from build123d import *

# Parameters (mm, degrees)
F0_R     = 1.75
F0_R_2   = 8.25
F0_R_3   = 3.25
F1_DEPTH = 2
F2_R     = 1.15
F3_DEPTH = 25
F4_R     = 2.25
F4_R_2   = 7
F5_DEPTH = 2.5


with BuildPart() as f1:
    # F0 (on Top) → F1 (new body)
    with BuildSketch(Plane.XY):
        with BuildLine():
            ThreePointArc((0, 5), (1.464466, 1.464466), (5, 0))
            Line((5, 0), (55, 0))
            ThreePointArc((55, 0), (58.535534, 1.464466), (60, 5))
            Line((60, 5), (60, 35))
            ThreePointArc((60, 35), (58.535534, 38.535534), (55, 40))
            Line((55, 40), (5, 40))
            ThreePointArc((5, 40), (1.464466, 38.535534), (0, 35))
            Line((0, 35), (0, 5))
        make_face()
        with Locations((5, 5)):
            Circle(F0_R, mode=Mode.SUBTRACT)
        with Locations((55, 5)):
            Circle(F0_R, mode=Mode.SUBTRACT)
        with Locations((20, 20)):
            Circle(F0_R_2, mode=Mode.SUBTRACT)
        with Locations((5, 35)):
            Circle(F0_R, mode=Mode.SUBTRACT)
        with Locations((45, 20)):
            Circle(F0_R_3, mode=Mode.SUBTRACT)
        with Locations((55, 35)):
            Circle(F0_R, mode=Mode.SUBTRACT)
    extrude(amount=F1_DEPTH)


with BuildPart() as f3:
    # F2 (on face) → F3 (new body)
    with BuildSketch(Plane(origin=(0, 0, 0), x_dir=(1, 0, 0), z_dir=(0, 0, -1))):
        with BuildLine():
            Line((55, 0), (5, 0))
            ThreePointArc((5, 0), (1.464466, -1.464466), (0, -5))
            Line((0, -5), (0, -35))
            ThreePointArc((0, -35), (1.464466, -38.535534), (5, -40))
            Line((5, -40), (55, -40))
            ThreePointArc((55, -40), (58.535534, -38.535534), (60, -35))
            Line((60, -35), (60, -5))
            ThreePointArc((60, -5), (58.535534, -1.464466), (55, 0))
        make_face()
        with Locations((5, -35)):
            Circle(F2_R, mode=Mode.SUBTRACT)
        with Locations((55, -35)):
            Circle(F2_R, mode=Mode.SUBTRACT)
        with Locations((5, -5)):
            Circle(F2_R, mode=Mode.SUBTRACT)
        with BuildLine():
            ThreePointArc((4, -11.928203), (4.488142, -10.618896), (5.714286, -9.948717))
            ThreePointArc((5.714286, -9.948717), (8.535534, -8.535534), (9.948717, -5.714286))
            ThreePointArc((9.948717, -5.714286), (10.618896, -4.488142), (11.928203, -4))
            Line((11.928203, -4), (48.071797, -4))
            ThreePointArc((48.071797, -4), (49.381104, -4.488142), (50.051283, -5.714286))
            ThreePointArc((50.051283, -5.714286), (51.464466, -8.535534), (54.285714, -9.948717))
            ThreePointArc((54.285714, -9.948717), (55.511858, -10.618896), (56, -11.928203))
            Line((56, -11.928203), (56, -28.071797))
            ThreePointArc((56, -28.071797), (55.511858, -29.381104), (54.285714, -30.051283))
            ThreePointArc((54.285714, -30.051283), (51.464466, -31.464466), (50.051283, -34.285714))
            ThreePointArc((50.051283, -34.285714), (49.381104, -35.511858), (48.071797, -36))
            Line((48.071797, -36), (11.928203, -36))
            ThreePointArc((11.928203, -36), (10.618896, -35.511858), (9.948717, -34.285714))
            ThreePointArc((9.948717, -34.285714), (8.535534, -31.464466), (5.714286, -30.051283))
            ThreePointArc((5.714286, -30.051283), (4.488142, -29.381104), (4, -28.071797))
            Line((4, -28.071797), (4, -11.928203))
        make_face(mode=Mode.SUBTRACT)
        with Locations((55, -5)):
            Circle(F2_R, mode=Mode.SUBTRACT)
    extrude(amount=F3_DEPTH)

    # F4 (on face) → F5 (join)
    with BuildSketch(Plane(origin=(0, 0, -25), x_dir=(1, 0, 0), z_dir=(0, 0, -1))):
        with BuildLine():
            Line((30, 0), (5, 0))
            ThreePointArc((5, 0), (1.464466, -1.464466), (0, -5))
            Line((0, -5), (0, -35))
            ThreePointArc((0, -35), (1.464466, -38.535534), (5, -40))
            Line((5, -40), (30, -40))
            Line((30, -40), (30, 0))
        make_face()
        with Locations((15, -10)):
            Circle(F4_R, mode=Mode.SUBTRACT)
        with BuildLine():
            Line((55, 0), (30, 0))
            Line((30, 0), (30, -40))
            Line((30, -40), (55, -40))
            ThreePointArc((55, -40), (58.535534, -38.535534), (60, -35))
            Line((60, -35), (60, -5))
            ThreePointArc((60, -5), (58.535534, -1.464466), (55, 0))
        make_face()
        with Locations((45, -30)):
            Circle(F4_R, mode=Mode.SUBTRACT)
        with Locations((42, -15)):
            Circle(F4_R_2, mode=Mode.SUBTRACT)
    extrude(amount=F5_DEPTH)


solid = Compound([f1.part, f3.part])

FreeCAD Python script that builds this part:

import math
import FreeCAD as App
import Part
import Sketcher

V = App.Vector

doc = App.newDocument("Part")
body = doc.addObject("PartDesign::Body", "Body")

sketch1 = body.newObject("Sketcher::SketchObject", "Sketch")
sketch1.AttachmentSupport = (doc.getObject("XY_Plane"), [""])
sketch1.MapMode = "FlatFace"
sketch1.addGeometry(Part.ArcOfCircle(Part.Circle(V(5, 5, 0), V(0, 0, 1), 5), math.radians(180), math.radians(270)), False)
sketch1.addGeometry(Part.LineSegment(V(5, 0, 0), V(55, 0, 0)), False)
sketch1.addGeometry(Part.ArcOfCircle(Part.Circle(V(55, 5, 0), V(0, 0, 1), 5), math.radians(-90), math.radians(0)), False)
sketch1.addGeometry(Part.LineSegment(V(60, 5, 0), V(60, 35, 0)), False)
sketch1.addGeometry(Part.ArcOfCircle(Part.Circle(V(55, 35, 0), V(0, 0, 1), 5), math.radians(0), math.radians(90)), False)
sketch1.addGeometry(Part.LineSegment(V(55, 40, 0), V(5, 40, 0)), False)
sketch1.addGeometry(Part.ArcOfCircle(Part.Circle(V(5, 35, 0), V(0, 0, 1), 5), math.radians(90), math.radians(180)), False)
sketch1.addGeometry(Part.LineSegment(V(0, 35, 0), V(0, 5, 0)), False)
sketch1.addGeometry(Part.Circle(V(5, 5, 0), V(0, 0, 1), 1.8), False)
sketch1.addGeometry(Part.Circle(V(55, 5, 0), V(0, 0, 1), 1.8), False)
sketch1.addGeometry(Part.Circle(V(20, 20, 0), V(0, 0, 1), 8.2), False)
sketch1.addGeometry(Part.Circle(V(5, 35, 0), V(0, 0, 1), 1.8), False)
sketch1.addGeometry(Part.Circle(V(45, 20, 0), V(0, 0, 1), 3.2), False)
sketch1.addGeometry(Part.Circle(V(55, 35, 0), V(0, 0, 1), 1.8), False)
sketch1.addConstraint(Sketcher.Constraint("Tangent", 0, 2, 1, 1))
sketch1.addConstraint(Sketcher.Constraint("Tangent", 1, 2, 2, 1))
sketch1.addConstraint(Sketcher.Constraint("Tangent", 2, 2, 3, 1))
sketch1.addConstraint(Sketcher.Constraint("Tangent", 3, 2, 4, 1))
sketch1.addConstraint(Sketcher.Constraint("Tangent", 4, 2, 5, 1))
sketch1.addConstraint(Sketcher.Constraint("Tangent", 5, 2, 6, 1))
sketch1.addConstraint(Sketcher.Constraint("Tangent", 6, 2, 7, 1))
sketch1.addConstraint(Sketcher.Constraint("Tangent", 7, 2, 0, 1))
sketch1.addConstraint(Sketcher.Constraint("Horizontal", 1))
sketch1.addConstraint(Sketcher.Constraint("Vertical", 3))
sketch1.addConstraint(Sketcher.Constraint("Horizontal", 5))
sketch1.addConstraint(Sketcher.Constraint("Vertical", 7))
sketch1.addConstraint(Sketcher.Constraint("Coincident", 8, 3, 0, 3))
sketch1.addConstraint(Sketcher.Constraint("Coincident", 9, 3, 2, 3))
sketch1.addConstraint(Sketcher.Constraint("Coincident", 11, 3, 6, 3))
sketch1.addConstraint(Sketcher.Constraint("Coincident", 13, 3, 4, 3))
sketch1.addConstraint(Sketcher.Constraint("Equal", 0, 2))
sketch1.addConstraint(Sketcher.Constraint("Equal", 2, 4))
sketch1.addConstraint(Sketcher.Constraint("Equal", 4, 6))
sketch1.addConstraint(Sketcher.Constraint("Equal", 8, 9))
sketch1.addConstraint(Sketcher.Constraint("Equal", 9, 11))
sketch1.addConstraint(Sketcher.Constraint("Equal", 11, 13))
sketch1.addConstraint(Sketcher.Constraint("PointOnObject", 0, 2, -1))
sketch1.addConstraint(Sketcher.Constraint("PointOnObject", 6, 2, -2))
sketch1.addConstraint(Sketcher.Constraint("Horizontal", 10, 3, 12, 3))
sketch1.addConstraint(Sketcher.Constraint("Radius", 0, 5.0))
sketch1.addConstraint(Sketcher.Constraint("Diameter", 8, 3.5))
sketch1.addConstraint(Sketcher.Constraint("Diameter", 10, 16.5))
sketch1.addConstraint(Sketcher.Constraint("Diameter", 12, 6.5))
sketch1.addConstraint(Sketcher.Constraint("DistanceX", 1, 1, 1, 2, 50.0))
sketch1.addConstraint(Sketcher.Constraint("DistanceY", 3, 1, 3, 2, 30.0))
sketch1.addConstraint(Sketcher.Constraint("DistanceX", -1, 1, 10, 3, 20.0))
sketch1.addConstraint(Sketcher.Constraint("DistanceY", -1, 1, 10, 3, 20.0))
sketch1.addConstraint(Sketcher.Constraint("DistanceX", -1, 1, 12, 3, 45.0))
pad1 = body.newObject("PartDesign::Pad", "Pad")
pad1.Profile = sketch1
pad1.Length = 2
body2 = doc.addObject("PartDesign::Body", "Body001")

sketch2 = body2.newObject("Sketcher::SketchObject", "Sketch001")
sketch2.AttachmentSupport = (doc.getObject("XY_Plane001"), [""])
sketch2.MapMode = "FlatFace"
sketch2.addGeometry(Part.LineSegment(V(55, 0, 0), V(5, 0, 0)), False)
sketch2.addGeometry(Part.ArcOfCircle(Part.Circle(V(5, 5, 0), V(0, 0, 1), 5), math.radians(180), math.radians(270)), False)
sketch2.addGeometry(Part.LineSegment(V(0, 5, 0), V(0, 35, 0)), False)
sketch2.addGeometry(Part.ArcOfCircle(Part.Circle(V(5, 35, 0), V(0, 0, 1), 5), math.radians(90), math.radians(180)), False)
sketch2.addGeometry(Part.LineSegment(V(5, 40, 0), V(55, 40, 0)), False)
sketch2.addGeometry(Part.ArcOfCircle(Part.Circle(V(55, 35, 0), V(0, 0, 1), 5), math.radians(0), math.radians(90)), False)
sketch2.addGeometry(Part.LineSegment(V(60, 35, 0), V(60, 5, 0)), False)
sketch2.addGeometry(Part.ArcOfCircle(Part.Circle(V(55, 5, 0), V(0, 0, 1), 5), math.radians(-90), math.radians(0)), False)
sketch2.addGeometry(Part.Circle(V(5, 35, 0), V(0, 0, 1), 1.1), False)
sketch2.addGeometry(Part.Circle(V(55, 35, 0), V(0, 0, 1), 1.1), False)
sketch2.addGeometry(Part.Circle(V(5, 5, 0), V(0, 0, 1), 1.1), False)
sketch2.addGeometry(Part.LineSegment(V(4, 28.1, 0), V(4, 11.9, 0)), False)
sketch2.addGeometry(Part.ArcOfCircle(Part.Circle(V(6, 11.9, 0), V(0, 0, 1), 2), math.radians(180), math.radians(262)), False)
sketch2.addGeometry(Part.ArcOfCircle(Part.Circle(V(5, 5, 0), V(0, 0, 1), 5), math.radians(8), math.radians(82)), False)
sketch2.addGeometry(Part.ArcOfCircle(Part.Circle(V(11.9, 6, 0), V(0, 0, 1), 2), math.radians(-172), math.radians(-90)), False)
sketch2.addGeometry(Part.LineSegment(V(11.9, 4, 0), V(48.1, 4, 0)), False)
sketch2.addGeometry(Part.ArcOfCircle(Part.Circle(V(48.1, 6, 0), V(0, 0, 1), 2), math.radians(-90), math.radians(-8)), False)
sketch2.addGeometry(Part.ArcOfCircle(Part.Circle(V(55, 5, 0), V(0, 0, 1), 5), math.radians(98), math.radians(172)), False)
sketch2.addGeometry(Part.ArcOfCircle(Part.Circle(V(54, 11.9, 0), V(0, 0, 1), 2), math.radians(-82), math.radians(0)), False)
sketch2.addGeometry(Part.LineSegment(V(56, 11.9, 0), V(56, 28.1, 0)), False)
sketch2.addGeometry(Part.ArcOfCircle(Part.Circle(V(54, 28.1, 0), V(0, 0, 1), 2), math.radians(0), math.radians(82)), False)
sketch2.addGeometry(Part.ArcOfCircle(Part.Circle(V(55, 35, 0), V(0, 0, 1), 5), math.radians(-172), math.radians(-98)), False)
sketch2.addGeometry(Part.ArcOfCircle(Part.Circle(V(48.1, 34, 0), V(0, 0, 1), 2), math.radians(8), math.radians(90)), False)
sketch2.addGeometry(Part.LineSegment(V(48.1, 36, 0), V(11.9, 36, 0)), False)
sketch2.addGeometry(Part.ArcOfCircle(Part.Circle(V(11.9, 34, 0), V(0, 0, 1), 2), math.radians(90), math.radians(172)), False)
sketch2.addGeometry(Part.ArcOfCircle(Part.Circle(V(5, 35, 0), V(0, 0, 1), 5), math.radians(-82), math.radians(-8)), False)
sketch2.addGeometry(Part.ArcOfCircle(Part.Circle(V(6, 28.1, 0), V(0, 0, 1), 2), math.radians(98), math.radians(180)), False)
sketch2.addGeometry(Part.Circle(V(55, 5, 0), V(0, 0, 1), 1.1), False)
sketch2.addConstraint(Sketcher.Constraint("Tangent", 0, 2, 1, 2))
sketch2.addConstraint(Sketcher.Constraint("Tangent", 1, 1, 2, 1))
sketch2.addConstraint(Sketcher.Constraint("Tangent", 2, 2, 3, 2))
sketch2.addConstraint(Sketcher.Constraint("Tangent", 3, 1, 4, 1))
sketch2.addConstraint(Sketcher.Constraint("Tangent", 4, 2, 5, 2))
sketch2.addConstraint(Sketcher.Constraint("Tangent", 5, 1, 6, 1))
sketch2.addConstraint(Sketcher.Constraint("Tangent", 6, 2, 7, 2))
sketch2.addConstraint(Sketcher.Constraint("Tangent", 7, 1, 0, 1))
sketch2.addConstraint(Sketcher.Constraint("Tangent", 11, 2, 12, 1))
sketch2.addConstraint(Sketcher.Constraint("Tangent", 12, 2, 13, 2))
sketch2.addConstraint(Sketcher.Constraint("Tangent", 13, 1, 14, 1))
sketch2.addConstraint(Sketcher.Constraint("Tangent", 14, 2, 15, 1))
sketch2.addConstraint(Sketcher.Constraint("Tangent", 15, 2, 16, 1))
sketch2.addConstraint(Sketcher.Constraint("Tangent", 16, 2, 17, 2))
sketch2.addConstraint(Sketcher.Constraint("Tangent", 17, 1, 18, 1))
sketch2.addConstraint(Sketcher.Constraint("Tangent", 18, 2, 19, 1))
sketch2.addConstraint(Sketcher.Constraint("Tangent", 19, 2, 20, 1))
sketch2.addConstraint(Sketcher.Constraint("Tangent", 20, 2, 21, 2))
sketch2.addConstraint(Sketcher.Constraint("Tangent", 21, 1, 22, 1))
sketch2.addConstraint(Sketcher.Constraint("Tangent", 22, 2, 23, 1))
sketch2.addConstraint(Sketcher.Constraint("Tangent", 23, 2, 24, 1))
sketch2.addConstraint(Sketcher.Constraint("Tangent", 24, 2, 25, 2))
sketch2.addConstraint(Sketcher.Constraint("Tangent", 25, 1, 26, 1))
sketch2.addConstraint(Sketcher.Constraint("Tangent", 26, 2, 11, 1))
sketch2.addConstraint(Sketcher.Constraint("Horizontal", 0))
sketch2.addConstraint(Sketcher.Constraint("Vertical", 2))
sketch2.addConstraint(Sketcher.Constraint("Horizontal", 4))
sketch2.addConstraint(Sketcher.Constraint("Vertical", 6))
sketch2.addConstraint(Sketcher.Constraint("Vertical", 11))
sketch2.addConstraint(Sketcher.Constraint("Horizontal", 15))
sketch2.addConstraint(Sketcher.Constraint("Vertical", 19))
sketch2.addConstraint(Sketcher.Constraint("Horizontal", 23))
sketch2.addConstraint(Sketcher.Constraint("Coincident", 8, 3, 3, 3))
sketch2.addConstraint(Sketcher.Constraint("Coincident", 9, 3, 5, 3))
sketch2.addConstraint(Sketcher.Constraint("Coincident", 10, 3, 1, 3))
sketch2.addConstraint(Sketcher.Constraint("Coincident", 13, 3, 1, 3))
sketch2.addConstraint(Sketcher.Constraint("Coincident", 17, 3, 7, 3))
sketch2.addConstraint(Sketcher.Constraint("Coincident", 21, 3, 5, 3))
sketch2.addConstraint(Sketcher.Constraint("Coincident", 25, 3, 3, 3))
sketch2.addConstraint(Sketcher.Constraint("Coincident", 27, 3, 7, 3))
sketch2.addConstraint(Sketcher.Constraint("Equal", 1, 3))
sketch2.addConstraint(Sketcher.Constraint("Equal", 3, 5))
sketch2.addConstraint(Sketcher.Constraint("Equal", 5, 7))
sketch2.addConstraint(Sketcher.Constraint("Equal", 8, 9))
sketch2.addConstraint(Sketcher.Constraint("Equal", 9, 10))
sketch2.addConstraint(Sketcher.Constraint("Equal", 12, 14))
sketch2.addConstraint(Sketcher.Constraint("Equal", 14, 16))
sketch2.addConstraint(Sketcher.Constraint("Equal", 13, 17))
sketch2.addConstraint(Sketcher.Constraint("Equal", 16, 18))
sketch2.addConstraint(Sketcher.Constraint("Equal", 18, 20))
sketch2.addConstraint(Sketcher.Constraint("Equal", 17, 21))
sketch2.addConstraint(Sketcher.Constraint("Equal", 20, 22))
sketch2.addConstraint(Sketcher.Constraint("Equal", 22, 24))
sketch2.addConstraint(Sketcher.Constraint("Equal", 21, 25))
sketch2.addConstraint(Sketcher.Constraint("Equal", 24, 26))
sketch2.addConstraint(Sketcher.Constraint("Equal", 10, 27))
sketch2.addConstraint(Sketcher.Constraint("PointOnObject", 0, 2, -1))
sketch2.addConstraint(Sketcher.Constraint("PointOnObject", 1, 1, -2))
sketch2.addConstraint(Sketcher.Constraint("Horizontal", 12, 3, 18, 3))
sketch2.addConstraint(Sketcher.Constraint("Vertical", 16, 3, 22, 3))
sketch2.addConstraint(Sketcher.Constraint("Radius", 1, 5.0))
sketch2.addConstraint(Sketcher.Constraint("Radius", 12, 1.999999))
sketch2.addConstraint(Sketcher.Constraint("Radius", 13, 5.000002))
sketch2.addConstraint(Sketcher.Constraint("Diameter", 8, 2.3))
sketch2.addConstraint(Sketcher.Constraint("DistanceX", 0, 2, 0, 1, 50.0))
sketch2.addConstraint(Sketcher.Constraint("DistanceY", 2, 1, 2, 2, 30.0))
sketch2.addConstraint(Sketcher.Constraint("DistanceX", -1, 1, 12, 3, 5.999999))
sketch2.addConstraint(Sketcher.Constraint("DistanceY", -1, 1, 14, 3, 5.999999))
pad2 = body2.newObject("PartDesign::Pad", "Pad001")
pad2.Profile = sketch2
pad2.Length = 25
pad2.Reversed = True

sketch3 = body2.newObject("Sketcher::SketchObject", "Sketch002")
sketch3.AttachmentSupport = (doc.getObject("XY_Plane001"), [""])
sketch3.MapMode = "FlatFace"
sketch3.AttachmentOffset = App.Placement(V(0, 0, -25), App.Rotation())
sketch3.addGeometry(Part.ArcOfCircle(Part.Circle(V(5, 5, 0), V(0, 0, 1), 5), math.radians(180), math.radians(270)), False)
sketch3.addGeometry(Part.LineSegment(V(0, 5, 0), V(0, 35, 0)), False)
sketch3.addGeometry(Part.ArcOfCircle(Part.Circle(V(5, 35, 0), V(0, 0, 1), 5), math.radians(90), math.radians(180)), False)
sketch3.addGeometry(Part.LineSegment(V(5, 40, 0), V(55, 40, 0)), False)
sketch3.addGeometry(Part.ArcOfCircle(Part.Circle(V(55, 35, 0), V(0, 0, 1), 5), math.radians(0), math.radians(90)), False)
sketch3.addGeometry(Part.LineSegment(V(60, 35, 0), V(60, 5, 0)), False)
sketch3.addGeometry(Part.ArcOfCircle(Part.Circle(V(55, 5, 0), V(0, 0, 1), 5), math.radians(-90), math.radians(0)), False)
sketch3.addGeometry(Part.LineSegment(V(55, 0, 0), V(5, 0, 0)), False)
sketch3.addGeometry(Part.Circle(V(45, 30, 0), V(0, 0, 1), 2.2), False)
sketch3.addGeometry(Part.Circle(V(15, 10, 0), V(0, 0, 1), 2.2), False)
sketch3.addGeometry(Part.Circle(V(42, 15, 0), V(0, 0, 1), 7), False)
sketch3.addConstraint(Sketcher.Constraint("Tangent", 0, 1, 1, 1))
sketch3.addConstraint(Sketcher.Constraint("Tangent", 1, 2, 2, 2))
sketch3.addConstraint(Sketcher.Constraint("Tangent", 2, 1, 3, 1))
sketch3.addConstraint(Sketcher.Constraint("Tangent", 3, 2, 4, 2))
sketch3.addConstraint(Sketcher.Constraint("Tangent", 4, 1, 5, 1))
sketch3.addConstraint(Sketcher.Constraint("Tangent", 5, 2, 6, 2))
sketch3.addConstraint(Sketcher.Constraint("Tangent", 6, 1, 7, 1))
sketch3.addConstraint(Sketcher.Constraint("Tangent", 7, 2, 0, 2))
sketch3.addConstraint(Sketcher.Constraint("Vertical", 1))
sketch3.addConstraint(Sketcher.Constraint("Horizontal", 3))
sketch3.addConstraint(Sketcher.Constraint("Vertical", 5))
sketch3.addConstraint(Sketcher.Constraint("Horizontal", 7))
sketch3.addConstraint(Sketcher.Constraint("Equal", 0, 2))
sketch3.addConstraint(Sketcher.Constraint("Equal", 2, 4))
sketch3.addConstraint(Sketcher.Constraint("Equal", 4, 6))
sketch3.addConstraint(Sketcher.Constraint("Equal", 8, 9))
sketch3.addConstraint(Sketcher.Constraint("PointOnObject", 0, 1, -2))
sketch3.addConstraint(Sketcher.Constraint("PointOnObject", 6, 1, -1))
sketch3.addConstraint(Sketcher.Constraint("Diameter", 10, 14.0))
sketch3.addConstraint(Sketcher.Constraint("Radius", 0, 5.0))
sketch3.addConstraint(Sketcher.Constraint("Diameter", 8, 4.5))
sketch3.addConstraint(Sketcher.Constraint("DistanceX", 3, 1, 3, 2, 50.0))
sketch3.addConstraint(Sketcher.Constraint("DistanceY", 1, 1, 1, 2, 30.0))
sketch3.addConstraint(Sketcher.Constraint("DistanceX", -1, 1, 8, 3, 45.0))
sketch3.addConstraint(Sketcher.Constraint("DistanceY", -1, 1, 8, 3, 30.0))
sketch3.addConstraint(Sketcher.Constraint("DistanceX", -1, 1, 9, 3, 15.0))
sketch3.addConstraint(Sketcher.Constraint("DistanceY", -1, 1, 9, 3, 10.0))
sketch3.addConstraint(Sketcher.Constraint("DistanceX", -1, 1, 10, 3, 42.0))
sketch3.addConstraint(Sketcher.Constraint("DistanceY", -1, 1, 10, 3, 15.0))
pad3 = body2.newObject("PartDesign::Pad", "Pad002")
pad3.Profile = sketch3
pad3.Length = 2.5
pad3.Reversed = True

doc.recompute()
